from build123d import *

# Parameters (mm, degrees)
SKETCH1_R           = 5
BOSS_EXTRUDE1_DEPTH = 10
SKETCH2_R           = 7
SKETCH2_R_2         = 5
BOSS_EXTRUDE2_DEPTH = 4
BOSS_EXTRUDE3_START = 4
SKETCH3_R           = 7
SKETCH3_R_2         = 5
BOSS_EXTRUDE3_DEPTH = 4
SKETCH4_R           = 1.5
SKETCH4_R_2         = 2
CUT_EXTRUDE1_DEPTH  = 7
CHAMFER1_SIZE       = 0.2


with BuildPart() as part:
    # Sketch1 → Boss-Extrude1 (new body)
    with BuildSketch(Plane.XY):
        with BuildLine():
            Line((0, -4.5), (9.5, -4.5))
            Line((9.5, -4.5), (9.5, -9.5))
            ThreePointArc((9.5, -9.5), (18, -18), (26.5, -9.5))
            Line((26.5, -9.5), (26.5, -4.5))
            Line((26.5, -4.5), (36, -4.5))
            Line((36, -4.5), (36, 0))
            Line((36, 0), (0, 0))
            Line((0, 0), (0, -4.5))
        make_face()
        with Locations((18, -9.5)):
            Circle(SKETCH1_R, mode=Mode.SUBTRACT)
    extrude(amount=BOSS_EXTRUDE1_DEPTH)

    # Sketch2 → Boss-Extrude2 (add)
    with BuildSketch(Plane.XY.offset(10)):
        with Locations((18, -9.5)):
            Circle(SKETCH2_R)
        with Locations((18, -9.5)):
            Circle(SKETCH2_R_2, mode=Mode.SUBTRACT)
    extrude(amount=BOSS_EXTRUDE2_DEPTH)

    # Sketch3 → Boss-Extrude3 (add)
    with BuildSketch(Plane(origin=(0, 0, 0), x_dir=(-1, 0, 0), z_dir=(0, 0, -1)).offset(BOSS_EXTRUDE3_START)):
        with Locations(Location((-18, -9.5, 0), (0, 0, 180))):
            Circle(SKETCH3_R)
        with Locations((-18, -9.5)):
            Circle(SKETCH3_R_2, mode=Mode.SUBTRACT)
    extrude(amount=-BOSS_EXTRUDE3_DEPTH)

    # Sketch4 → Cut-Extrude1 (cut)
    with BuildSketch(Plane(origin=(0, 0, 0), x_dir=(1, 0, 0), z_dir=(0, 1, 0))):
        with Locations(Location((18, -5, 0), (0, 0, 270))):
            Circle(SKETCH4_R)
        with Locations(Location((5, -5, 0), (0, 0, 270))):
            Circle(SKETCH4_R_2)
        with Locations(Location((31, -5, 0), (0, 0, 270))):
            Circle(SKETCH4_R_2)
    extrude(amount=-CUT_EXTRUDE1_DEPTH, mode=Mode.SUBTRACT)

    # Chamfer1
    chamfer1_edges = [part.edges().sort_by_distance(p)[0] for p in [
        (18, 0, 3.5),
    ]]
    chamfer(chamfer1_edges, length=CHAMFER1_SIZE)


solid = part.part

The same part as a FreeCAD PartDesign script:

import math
import FreeCAD as App
import Part
import Sketcher


def edges_at(feature, points):
    """Names of the edges that pass closest to the given points."""
    edges = feature.Shape.Edges
    near = lambda p: min(range(len(edges)), key=lambda i: edges[i].distToShape(Part.Vertex(*p))[0])
    return sorted({f"Edge{near(p) + 1}" for p in points})

doc = App.newDocument("Part")
body = doc.addObject("PartDesign::Body", "Body")

sketch1 = doc.addObject("Sketcher::SketchObject", "Sketch")
body.addObject(sketch1)
sketch1.AttachmentSupport = (doc.XY_Plane, [""])
sketch1.MapMode = "FlatFace"
sketch1.addGeometry(Part.LineSegment(App.Vector(0, -4.5, 0), App.Vector(9.5, -4.5, 0)), False)
sketch1.addGeometry(Part.LineSegment(App.Vector(9.5, -4.5, 0), App.Vector(9.5, -9.5, 0)), False)
sketch1.addGeometry(Part.ArcOfCircle(Part.Circle(App.Vector(18, -9.5, 0), App.Vector(0, 0, 1), 8.5), math.radians(180), math.radians(360)), False)
sketch1.addGeometry(Part.LineSegment(App.Vector(26.5, -9.5, 0), App.Vector(26.5, -4.5, 0)), False)
sketch1.addGeometry(Part.LineSegment(App.Vector(26.5, -4.5, 0), App.Vector(36, -4.5, 0)), False)
sketch1.addGeometry(Part.LineSegment(App.Vector(36, -4.5, 0), App.Vector(36, 0, 0)), False)
sketch1.addGeometry(Part.LineSegment(App.Vector(36, 0, 0), App.Vector(0, 0, 0)), False)
sketch1.addGeometry(Part.LineSegment(App.Vector(0, 0, 0), App.Vector(0, -4.5, 0)), False)
sketch1.addGeometry(Part.Circle(App.Vector(18, -9.5, 0), App.Vector(0, 0, 1), 5), False)
sketch1.addConstraint(Sketcher.Constraint("Coincident", 0, 2, 1, 1))
sketch1.addConstraint(Sketcher.Constraint("Tangent", 1, 2, 2, 1))
sketch1.addConstraint(Sketcher.Constraint("Tangent", 2, 2, 3, 1))
sketch1.addConstraint(Sketcher.Constraint("Coincident", 3, 2, 4, 1))
sketch1.addConstraint(Sketcher.Constraint("Coincident", 4, 2, 5, 1))
sketch1.addConstraint(Sketcher.Constraint("Coincident", 5, 2, 6, 1))
sketch1.addConstraint(Sketcher.Constraint("Coincident", 6, 2, 7, 1))
sketch1.addConstraint(Sketcher.Constraint("Coincident", 7, 2, 0, 1))
sketch1.addConstraint(Sketcher.Constraint("Horizontal", 0))
sketch1.addConstraint(Sketcher.Constraint("Vertical", 1))
sketch1.addConstraint(Sketcher.Constraint("Vertical", 3))
sketch1.addConstraint(Sketcher.Constraint("Horizontal", 4))
sketch1.addConstraint(Sketcher.Constraint("Vertical", 5))
sketch1.addConstraint(Sketcher.Constraint("Horizontal", 6))
sketch1.addConstraint(Sketcher.Constraint("Vertical", 7))
sketch1.addConstraint(Sketcher.Constraint("Coincident", 6, 2, -1, 1))
sketch1.addConstraint(Sketcher.Constraint("Coincident", 8, 3, 2, 3))
sketch1.addConstraint(Sketcher.Constraint("Horizontal", 0, 2, 3, 2))
sketch1.addConstraint(Sketcher.Constraint("Equal", 0, 4))
sketch1.addConstraint(Sketcher.Constraint("Diameter", 8, 10.0))
sketch1.addConstraint(Sketcher.Constraint("Radius", 2, 8.5))
sketch1.addConstraint(Sketcher.Constraint("DistanceX", 6, 2, 6, 1, 36.0))
sketch1.addConstraint(Sketcher.Constraint("DistanceY", 1, 2, 1, 1, 5.0))
sketch1.addConstraint(Sketcher.Constraint("DistanceY", 5, 1, 5, 2, 4.5))
pad1 = doc.addObject("PartDesign::Pad", "Pad")
body.addObject(pad1)
pad1.Profile = sketch1
pad1.Length = 10

sketch2 = doc.addObject("Sketcher::SketchObject", "Sketch001")
body.addObject(sketch2)
sketch2.AttachmentSupport = (doc.XY_Plane, [""])
sketch2.MapMode = "FlatFace"
sketch2.AttachmentOffset = App.Placement(App.Vector(0, 0, 10), App.Rotation())
sketch2.addGeometry(Part.Circle(App.Vector(18, -10, 0), App.Vector(0, 0, 1), 7), False)
sketch2.addGeometry(Part.Circle(App.Vector(18, -10, 0), App.Vector(0, 0, 1), 5), False)
sketch2.addConstraint(Sketcher.Constraint("Coincident", 1, 3, 0, 3))
sketch2.addConstraint(Sketcher.Constraint("Diameter", 0, 14.0))
sketch2.addConstraint(Sketcher.Constraint("Diameter", 1, 10.0))
sketch2.addConstraint(Sketcher.Constraint("DistanceX", -1, 1, 0, 3, 18.0))
sketch2.addConstraint(Sketcher.Constraint("DistanceY", 0, 3, -1, 1, 9.5))
pad2 = doc.addObject("PartDesign::Pad", "Pad001")
body.addObject(pad2)
pad2.Profile = sketch2
pad2.Length = 4

sketch3 = doc.addObject("Sketcher::SketchObject", "Sketch002")
body.addObject(sketch3)
sketch3.AttachmentSupport = (doc.XY_Plane, [""])
sketch3.MapMode = "FlatFace"
sketch3.AttachmentOffset = App.Placement(App.Vector(0, 0, -4), App.Rotation())
sketch3.addGeometry(Part.Circle(App.Vector(18, -10, 0), App.Vector(0, 0, 1), 7), False)
sketch3.addGeometry(Part.Circle(App.Vector(18, -10, 0), App.Vector(0, 0, 1), 5), False)
sketch3.addConstraint(Sketcher.Constraint("Coincident", 1, 3, 0, 3))
sketch3.addConstraint(Sketcher.Constraint("Diameter", 0, 14.0))
sketch3.addConstraint(Sketcher.Constraint("Diameter", 1, 10.0))
sketch3.addConstraint(Sketcher.Constraint("DistanceX", -1, 1, 0, 3, 18.0))
sketch3.addConstraint(Sketcher.Constraint("DistanceY", 0, 3, -1, 1, 9.5))
pad3 = doc.addObject("PartDesign::Pad", "Pad002")
body.addObject(pad3)
pad3.Profile = sketch3
pad3.Length = 4

sketch4 = doc.addObject("Sketcher::SketchObject", "Sketch003")
body.addObject(sketch4)
sketch4.AttachmentSupport = (doc.XZ_Plane, [""])
sketch4.MapMode = "FlatFace"
sketch4.addGeometry(Part.Circle(App.Vector(18, 5, 0), App.Vector(0, 0, 1), 1.5), False)
sketch4.addGeometry(Part.Circle(App.Vector(5, 5, 0), App.Vector(0, 0, 1), 2), False)
sketch4.addGeometry(Part.Circle(App.Vector(31, 5, 0), App.Vector(0, 0, 1), 2), False)
sketch4.addConstraint(Sketcher.Constraint("Equal", 1, 2))
sketch4.addConstraint(Sketcher.Constraint("Horizontal", 0, 3, 1, 3))
sketch4.addConstraint(Sketcher.Constraint("Horizontal", 1, 3, 2, 3))
sketch4.addConstraint(Sketcher.Constraint("Diameter", 0, 3.0))
sketch4.addConstraint(Sketcher.Constraint("Diameter", 1, 4.0))
sketch4.addConstraint(Sketcher.Constraint("DistanceX", -1, 1, 0, 3, 18.0))
sketch4.addConstraint(Sketcher.Constraint("DistanceY", -1, 1, 0, 3, 5.0))
sketch4.addConstraint(Sketcher.Constraint("DistanceX", -1, 1, 1, 3, 5.0))
sketch4.addConstraint(Sketcher.Constraint("DistanceX", -1, 1, 2, 3, 31.0))
pocket1 = doc.addObject("PartDesign::Pocket", "Pocket")
body.addObject(pocket1)
pocket1.Profile = sketch4
pocket1.Length = 7
pocket1.Reversed = True
doc.recompute()

chamfer = doc.addObject("PartDesign::Chamfer", "Chamfer")
body.addObject(chamfer)
chamfer.Base = (pocket1, edges_at(pocket1, [(18, 0, 3.5)]))
chamfer.Size = 0.2

doc.recompute()
